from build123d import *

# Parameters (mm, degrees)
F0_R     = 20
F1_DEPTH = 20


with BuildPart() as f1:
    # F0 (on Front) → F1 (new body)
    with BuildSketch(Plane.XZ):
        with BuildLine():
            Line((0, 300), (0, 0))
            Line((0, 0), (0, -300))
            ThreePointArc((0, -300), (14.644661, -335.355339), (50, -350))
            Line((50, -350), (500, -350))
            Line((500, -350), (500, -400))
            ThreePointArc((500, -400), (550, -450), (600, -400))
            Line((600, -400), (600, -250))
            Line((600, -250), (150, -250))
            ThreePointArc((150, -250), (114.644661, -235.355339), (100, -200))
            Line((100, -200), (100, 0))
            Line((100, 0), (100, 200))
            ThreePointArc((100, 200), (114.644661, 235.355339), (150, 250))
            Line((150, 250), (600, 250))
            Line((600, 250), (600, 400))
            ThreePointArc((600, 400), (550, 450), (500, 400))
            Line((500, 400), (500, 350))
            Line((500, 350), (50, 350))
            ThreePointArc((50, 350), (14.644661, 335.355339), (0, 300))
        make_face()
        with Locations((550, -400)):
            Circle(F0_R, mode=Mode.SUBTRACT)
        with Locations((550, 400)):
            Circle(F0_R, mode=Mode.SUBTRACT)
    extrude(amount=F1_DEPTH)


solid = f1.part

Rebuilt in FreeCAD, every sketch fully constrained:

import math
import FreeCAD as App
import Part
import Sketcher
Q = App.Units.Quantity

doc = App.newDocument("Part")
params = doc.addObject("Spreadsheet::Sheet", "Params")
for row, (alias, value) in enumerate([
    ("sketch1_diameter", "40 mm"),
    ("sketch1_radius", "50 mm"),
    ("sketch1_width", "450 mm"),
    ("sketch1_height", "600 mm"),
    ("sketch1_height2", "50 mm"),
    ("pad1_length", "20 mm"),
], start=1):
    params.set(f"A{row}", alias)
    params.set(f"B{row}", "=" + value)
    params.setAlias(f"B{row}", alias)

body = doc.addObject("PartDesign::Body", "Body")

# Sketch on XZ plane
sketch1 = body.newObject("Sketcher::SketchObject", "Sketch")
sketch1.AttachmentSupport = (doc.getObject("XZ_Plane"), [""])
sketch1.MapMode = "FlatFace"
sketch1.addGeometry([
    Part.LineSegment(App.Vector(0, 300, 0), App.Vector(0, -300, 0)),  # 0
    Part.ArcOfCircle(Part.Circle(App.Vector(50, -300, 0), App.Vector(0, 0, 1), 50), math.radians(-180), math.radians(-90)),  # 1
    Part.LineSegment(App.Vector(50, -350, 0), App.Vector(500, -350, 0)),  # 2
    Part.LineSegment(App.Vector(500, -350, 0), App.Vector(500, -400, 0)),  # 3
    Part.ArcOfCircle(Part.Circle(App.Vector(550, -400, 0), App.Vector(0, 0, 1), 50), math.radians(180), math.radians(360)),  # 4
    Part.LineSegment(App.Vector(600, -400, 0), App.Vector(600, -250, 0)),  # 5
    Part.LineSegment(App.Vector(600, -250, 0), App.Vector(150, -250, 0)),  # 6
    Part.ArcOfCircle(Part.Circle(App.Vector(150, -200, 0), App.Vector(0, 0, 1), 50), math.radians(-180), math.radians(-90)),  # 7
    Part.LineSegment(App.Vector(100, -200, 0), App.Vector(100, 200, 0)),  # 8
    Part.ArcOfCircle(Part.Circle(App.Vector(150, 200, 0), App.Vector(0, 0, 1), 50), math.radians(90), math.radians(180)),  # 9
    Part.LineSegment(App.Vector(150, 250, 0), App.Vector(600, 250, 0)),  # 10
    Part.LineSegment(App.Vector(600, 250, 0), App.Vector(600, 400, 0)),  # 11
    Part.ArcOfCircle(Part.Circle(App.Vector(550, 400, 0), App.Vector(0, 0, 1), 50), math.radians(0), math.radians(180)),  # 12
    Part.LineSegment(App.Vector(500, 400, 0), App.Vector(500, 350, 0)),  # 13
    Part.LineSegment(App.Vector(500, 350, 0), App.Vector(50, 350, 0)),  # 14
    Part.ArcOfCircle(Part.Circle(App.Vector(50, 300, 0), App.Vector(0, 0, 1), 50), math.radians(90), math.radians(180)),  # 15
    Part.Circle(App.Vector(550, -400, 0), App.Vector(0, 0, 1), 20),  # 16
    Part.Circle(App.Vector(550, 400, 0), App.Vector(0, 0, 1), 20),  # 17
], False)
sketch1.addConstraint([
    Sketcher.Constraint("Tangent", 0, 2, 1, 1),
    Sketcher.Constraint("Tangent", 1, 2, 2, 1),
    Sketcher.Constraint("Coincident", 2, 2, 3, 1),
    Sketcher.Constraint("Tangent", 3, 2, 4, 1),
    Sketcher.Constraint("Tangent", 4, 2, 5, 1),
    Sketcher.Constraint("Coincident", 5, 2, 6, 1),
    Sketcher.Constraint("Tangent", 6, 2, 7, 2),
    Sketcher.Constraint("Tangent", 7, 1, 8, 1),
    Sketcher.Constraint("Tangent", 8, 2, 9, 2),
    Sketcher.Constraint("Tangent", 9, 1, 10, 1),
    Sketcher.Constraint("Coincident", 10, 2, 11, 1),
    Sketcher.Constraint("Tangent", 11, 2, 12, 1),
    Sketcher.Constraint("Tangent", 12, 2, 13, 1),
    Sketcher.Constraint("Coincident", 13, 2, 14, 1),
    Sketcher.Constraint("Tangent", 14, 2, 15, 1),
    Sketcher.Constraint("Tangent", 15, 2, 0, 1),
    Sketcher.Constraint("Vertical", 0),
    Sketcher.Constraint("Horizontal", 2),
    Sketcher.Constraint("Vertical", 3),
    Sketcher.Constraint("Vertical", 5),
    Sketcher.Constraint("Horizontal", 6),
    Sketcher.Constraint("Vertical", 8),
    Sketcher.Constraint("Horizontal", 10),
    Sketcher.Constraint("Vertical", 11),
    Sketcher.Constraint("Vertical", 13),
    Sketcher.Constraint("Horizontal", 14),
    Sketcher.Constraint("Coincident", 16, 3, 4, 3),
    Sketcher.Constraint("Coincident", 17, 3, 12, 3),
    Sketcher.Constraint("Equal", 1, 4),
    Sketcher.Constraint("Equal", 4, 7),
    Sketcher.Constraint("Equal", 7, 9),
    Sketcher.Constraint("Equal", 9, 12),
    Sketcher.Constraint("Equal", 12, 15),
    Sketcher.Constraint("Equal", 16, 17),
    Sketcher.Constraint("Symmetric", 0, 2, 15, 2, -1, 1),
    Sketcher.Constraint("Symmetric", 4, 3, 12, 3, -1),
    Sketcher.Constraint("Equal", 2, 6),
    Sketcher.Constraint("Equal", 5, 11),
    Sketcher.Constraint("Diameter", 16, Q("40 mm")),
    Sketcher.Constraint("Radius", 1, Q("50 mm")),
    Sketcher.Constraint("DistanceX", 2, 1, 2, 2, Q("450 mm")),
    Sketcher.Constraint("DistanceY", 0, 2, 0, 1, Q("600 mm")),
    Sketcher.Constraint("DistanceY", 3, 2, 3, 1, Q("50 mm")),
    Sketcher.Constraint("DistanceY", 5, 1, 5, 2, Q("150 mm")),
])
sketch1.setExpression("Constraints[38]", "Params.sketch1_diameter")
sketch1.setExpression("Constraints[39]", "Params.sketch1_radius")
sketch1.setExpression("Constraints[40]", "Params.sketch1_width")
sketch1.setExpression("Constraints[41]", "Params.sketch1_height")
sketch1.setExpression("Constraints[42]", "Params.sketch1_height2")
pad1 = body.newObject("PartDesign::Pad", "Pad")
pad1.Profile = sketch1
pad1.setExpression("Length", "Params.pad1_length")

doc.recompute()
